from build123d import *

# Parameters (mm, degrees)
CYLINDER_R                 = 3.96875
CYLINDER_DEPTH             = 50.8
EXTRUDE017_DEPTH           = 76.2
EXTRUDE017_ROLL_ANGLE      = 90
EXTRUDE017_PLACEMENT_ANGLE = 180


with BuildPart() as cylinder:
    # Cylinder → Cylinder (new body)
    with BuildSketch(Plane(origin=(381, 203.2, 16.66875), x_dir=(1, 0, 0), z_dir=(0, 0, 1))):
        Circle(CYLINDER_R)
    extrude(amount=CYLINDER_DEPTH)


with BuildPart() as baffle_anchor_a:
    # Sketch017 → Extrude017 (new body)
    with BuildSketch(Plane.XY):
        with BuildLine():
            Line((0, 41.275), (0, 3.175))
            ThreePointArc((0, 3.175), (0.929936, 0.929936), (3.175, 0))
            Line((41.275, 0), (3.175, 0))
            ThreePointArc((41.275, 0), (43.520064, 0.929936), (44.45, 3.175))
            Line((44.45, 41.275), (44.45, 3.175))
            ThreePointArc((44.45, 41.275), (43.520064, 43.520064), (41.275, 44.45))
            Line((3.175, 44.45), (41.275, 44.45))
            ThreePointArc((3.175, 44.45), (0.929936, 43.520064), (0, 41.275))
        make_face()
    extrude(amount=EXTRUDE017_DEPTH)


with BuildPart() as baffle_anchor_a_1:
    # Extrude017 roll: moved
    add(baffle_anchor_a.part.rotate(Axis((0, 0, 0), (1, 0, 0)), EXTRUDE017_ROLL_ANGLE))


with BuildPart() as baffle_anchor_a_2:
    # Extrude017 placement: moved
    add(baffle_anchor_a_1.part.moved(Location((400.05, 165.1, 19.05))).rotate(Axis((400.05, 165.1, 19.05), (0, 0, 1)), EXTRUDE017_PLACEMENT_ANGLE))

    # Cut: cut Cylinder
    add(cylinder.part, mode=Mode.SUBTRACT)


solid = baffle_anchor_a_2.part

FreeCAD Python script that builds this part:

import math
import FreeCAD as App
import Part
import Sketcher

V = App.Vector
Q = App.Units.Quantity

doc = App.newDocument("Part")
body = doc.addObject("PartDesign::Body", "Body")

# Sketch on XY plane
sketch1 = doc.addObject("Sketcher::SketchObject", "Sketch")
body.addObject(sketch1)
sketch1.AttachmentSupport = (doc.XY_Plane, [""])
sketch1.MapMode = "FlatFace"
sketch1.AttachmentOffset = App.Placement(V(0, 0, 0.65625 * 25.4), App.Rotation())
sketch1.addGeometry(Part.Circle(V(381, 203.2, 0), V(0, 0, 1), 4), False)
sketch1.addConstraint([
    Sketcher.Constraint("Diameter", 0, Q("0.3125 in")),
    Sketcher.Constraint("DistanceX", -1, 1, 0, 3, Q("15 in")),
    Sketcher.Constraint("DistanceY", -1, 1, 0, 3, Q("8 in")),
])
pad1 = doc.addObject("PartDesign::Pad", "Pad")
body.addObject(pad1)
pad1.Profile = sketch1
pad1.Length = Q("2 in")
body2 = doc.addObject("PartDesign::Body", "Body001")

# Sketch on XY plane
sketch2 = doc.addObject("Sketcher::SketchObject", "Sketch001")
body2.addObject(sketch2)
sketch2.AttachmentSupport = (doc.getObject("XY_Plane001"), [""])
sketch2.MapMode = "FlatFace"
sketch2.addGeometry([
    Part.LineSegment(V(0, 41.3, 0), V(0, 3.2, 0)),  # 0
    Part.ArcOfCircle(Part.Circle(V(3.2, 3.2, 0), V(0, 0, 1), 3.2), math.radians(-180), math.radians(-90)),  # 1
    Part.LineSegment(V(3.2, 0, 0), V(41.3, 0, 0)),  # 2
    Part.ArcOfCircle(Part.Circle(V(41.3, 3.2, 0), V(0, 0, 1), 3.2), math.radians(-90), math.radians(0)),  # 3
    Part.LineSegment(V(44.5, 3.2, 0), V(44.5, 41.3, 0)),  # 4
    Part.ArcOfCircle(Part.Circle(V(41.3, 41.3, 0), V(0, 0, 1), 3.2), math.radians(0), math.radians(90)),  # 5
    Part.LineSegment(V(41.3, 44.5, 0), V(3.2, 44.5, 0)),  # 6
    Part.ArcOfCircle(Part.Circle(V(3.2, 41.3, 0), V(0, 0, 1), 3.2), math.radians(90), math.radians(180)),  # 7
], False)
sketch2.addConstraint([
    Sketcher.Constraint("Tangent", 0, 2, 1, 1),
    Sketcher.Constraint("Tangent", 1, 2, 2, 1),
    Sketcher.Constraint("Tangent", 2, 2, 3, 1),
    Sketcher.Constraint("Tangent", 3, 2, 4, 1),
    Sketcher.Constraint("Tangent", 4, 2, 5, 1),
    Sketcher.Constraint("Tangent", 5, 2, 6, 1),
    Sketcher.Constraint("Tangent", 6, 2, 7, 1),
    Sketcher.Constraint("Tangent", 7, 2, 0, 1),
    Sketcher.Constraint("Vertical", 0),
    Sketcher.Constraint("Horizontal", 2),
    Sketcher.Constraint("Vertical", 4),
    Sketcher.Constraint("Horizontal", 6),
    Sketcher.Constraint("Equal", 1, 3),
    Sketcher.Constraint("Equal", 3, 5),
    Sketcher.Constraint("Equal", 5, 7),
    Sketcher.Constraint("PointOnObject", 0, 2, -2),
    Sketcher.Constraint("PointOnObject", 1, 2, -1),
    Sketcher.Constraint("Equal", 6, 0),
    Sketcher.Constraint("DistanceX", 2, 1, 2, 2, Q("1.5 in")),
    Sketcher.Constraint("Radius", 1, Q("0.125 in")),
])
pad2 = doc.addObject("PartDesign::Pad", "Pad001")
body2.addObject(pad2)
pad2.Profile = sketch2
pad2.Length = Q("3 in")
body3 = doc.addObject("PartDesign::Body", "Body002")
doc.recompute()

body2.Placement = App.Placement(V(0, 0, 0), App.Rotation(V(1, 0, 0), 90))
boolean = doc.addObject("PartDesign::Boolean", "Boolean")
body3.addObject(boolean)
boolean.Type = "Fuse"
boolean.addObjects([body2])
body4 = doc.addObject("PartDesign::Body", "Body003")
doc.recompute()

body3.Placement = App.Placement(V(400.05, 165.1, 19.05), App.Rotation(V(0, 0, 1), 180))
boolean2 = doc.addObject("PartDesign::Boolean", "Boolean001")
body4.addObject(boolean2)
boolean2.Type = "Fuse"
boolean2.addObjects([body3])
doc.recompute()

boolean3 = doc.addObject("PartDesign::Boolean", "Boolean002")
body4.addObject(boolean3)
boolean3.Type = "Cut"
boolean3.addObjects([body])

doc.recompute()
